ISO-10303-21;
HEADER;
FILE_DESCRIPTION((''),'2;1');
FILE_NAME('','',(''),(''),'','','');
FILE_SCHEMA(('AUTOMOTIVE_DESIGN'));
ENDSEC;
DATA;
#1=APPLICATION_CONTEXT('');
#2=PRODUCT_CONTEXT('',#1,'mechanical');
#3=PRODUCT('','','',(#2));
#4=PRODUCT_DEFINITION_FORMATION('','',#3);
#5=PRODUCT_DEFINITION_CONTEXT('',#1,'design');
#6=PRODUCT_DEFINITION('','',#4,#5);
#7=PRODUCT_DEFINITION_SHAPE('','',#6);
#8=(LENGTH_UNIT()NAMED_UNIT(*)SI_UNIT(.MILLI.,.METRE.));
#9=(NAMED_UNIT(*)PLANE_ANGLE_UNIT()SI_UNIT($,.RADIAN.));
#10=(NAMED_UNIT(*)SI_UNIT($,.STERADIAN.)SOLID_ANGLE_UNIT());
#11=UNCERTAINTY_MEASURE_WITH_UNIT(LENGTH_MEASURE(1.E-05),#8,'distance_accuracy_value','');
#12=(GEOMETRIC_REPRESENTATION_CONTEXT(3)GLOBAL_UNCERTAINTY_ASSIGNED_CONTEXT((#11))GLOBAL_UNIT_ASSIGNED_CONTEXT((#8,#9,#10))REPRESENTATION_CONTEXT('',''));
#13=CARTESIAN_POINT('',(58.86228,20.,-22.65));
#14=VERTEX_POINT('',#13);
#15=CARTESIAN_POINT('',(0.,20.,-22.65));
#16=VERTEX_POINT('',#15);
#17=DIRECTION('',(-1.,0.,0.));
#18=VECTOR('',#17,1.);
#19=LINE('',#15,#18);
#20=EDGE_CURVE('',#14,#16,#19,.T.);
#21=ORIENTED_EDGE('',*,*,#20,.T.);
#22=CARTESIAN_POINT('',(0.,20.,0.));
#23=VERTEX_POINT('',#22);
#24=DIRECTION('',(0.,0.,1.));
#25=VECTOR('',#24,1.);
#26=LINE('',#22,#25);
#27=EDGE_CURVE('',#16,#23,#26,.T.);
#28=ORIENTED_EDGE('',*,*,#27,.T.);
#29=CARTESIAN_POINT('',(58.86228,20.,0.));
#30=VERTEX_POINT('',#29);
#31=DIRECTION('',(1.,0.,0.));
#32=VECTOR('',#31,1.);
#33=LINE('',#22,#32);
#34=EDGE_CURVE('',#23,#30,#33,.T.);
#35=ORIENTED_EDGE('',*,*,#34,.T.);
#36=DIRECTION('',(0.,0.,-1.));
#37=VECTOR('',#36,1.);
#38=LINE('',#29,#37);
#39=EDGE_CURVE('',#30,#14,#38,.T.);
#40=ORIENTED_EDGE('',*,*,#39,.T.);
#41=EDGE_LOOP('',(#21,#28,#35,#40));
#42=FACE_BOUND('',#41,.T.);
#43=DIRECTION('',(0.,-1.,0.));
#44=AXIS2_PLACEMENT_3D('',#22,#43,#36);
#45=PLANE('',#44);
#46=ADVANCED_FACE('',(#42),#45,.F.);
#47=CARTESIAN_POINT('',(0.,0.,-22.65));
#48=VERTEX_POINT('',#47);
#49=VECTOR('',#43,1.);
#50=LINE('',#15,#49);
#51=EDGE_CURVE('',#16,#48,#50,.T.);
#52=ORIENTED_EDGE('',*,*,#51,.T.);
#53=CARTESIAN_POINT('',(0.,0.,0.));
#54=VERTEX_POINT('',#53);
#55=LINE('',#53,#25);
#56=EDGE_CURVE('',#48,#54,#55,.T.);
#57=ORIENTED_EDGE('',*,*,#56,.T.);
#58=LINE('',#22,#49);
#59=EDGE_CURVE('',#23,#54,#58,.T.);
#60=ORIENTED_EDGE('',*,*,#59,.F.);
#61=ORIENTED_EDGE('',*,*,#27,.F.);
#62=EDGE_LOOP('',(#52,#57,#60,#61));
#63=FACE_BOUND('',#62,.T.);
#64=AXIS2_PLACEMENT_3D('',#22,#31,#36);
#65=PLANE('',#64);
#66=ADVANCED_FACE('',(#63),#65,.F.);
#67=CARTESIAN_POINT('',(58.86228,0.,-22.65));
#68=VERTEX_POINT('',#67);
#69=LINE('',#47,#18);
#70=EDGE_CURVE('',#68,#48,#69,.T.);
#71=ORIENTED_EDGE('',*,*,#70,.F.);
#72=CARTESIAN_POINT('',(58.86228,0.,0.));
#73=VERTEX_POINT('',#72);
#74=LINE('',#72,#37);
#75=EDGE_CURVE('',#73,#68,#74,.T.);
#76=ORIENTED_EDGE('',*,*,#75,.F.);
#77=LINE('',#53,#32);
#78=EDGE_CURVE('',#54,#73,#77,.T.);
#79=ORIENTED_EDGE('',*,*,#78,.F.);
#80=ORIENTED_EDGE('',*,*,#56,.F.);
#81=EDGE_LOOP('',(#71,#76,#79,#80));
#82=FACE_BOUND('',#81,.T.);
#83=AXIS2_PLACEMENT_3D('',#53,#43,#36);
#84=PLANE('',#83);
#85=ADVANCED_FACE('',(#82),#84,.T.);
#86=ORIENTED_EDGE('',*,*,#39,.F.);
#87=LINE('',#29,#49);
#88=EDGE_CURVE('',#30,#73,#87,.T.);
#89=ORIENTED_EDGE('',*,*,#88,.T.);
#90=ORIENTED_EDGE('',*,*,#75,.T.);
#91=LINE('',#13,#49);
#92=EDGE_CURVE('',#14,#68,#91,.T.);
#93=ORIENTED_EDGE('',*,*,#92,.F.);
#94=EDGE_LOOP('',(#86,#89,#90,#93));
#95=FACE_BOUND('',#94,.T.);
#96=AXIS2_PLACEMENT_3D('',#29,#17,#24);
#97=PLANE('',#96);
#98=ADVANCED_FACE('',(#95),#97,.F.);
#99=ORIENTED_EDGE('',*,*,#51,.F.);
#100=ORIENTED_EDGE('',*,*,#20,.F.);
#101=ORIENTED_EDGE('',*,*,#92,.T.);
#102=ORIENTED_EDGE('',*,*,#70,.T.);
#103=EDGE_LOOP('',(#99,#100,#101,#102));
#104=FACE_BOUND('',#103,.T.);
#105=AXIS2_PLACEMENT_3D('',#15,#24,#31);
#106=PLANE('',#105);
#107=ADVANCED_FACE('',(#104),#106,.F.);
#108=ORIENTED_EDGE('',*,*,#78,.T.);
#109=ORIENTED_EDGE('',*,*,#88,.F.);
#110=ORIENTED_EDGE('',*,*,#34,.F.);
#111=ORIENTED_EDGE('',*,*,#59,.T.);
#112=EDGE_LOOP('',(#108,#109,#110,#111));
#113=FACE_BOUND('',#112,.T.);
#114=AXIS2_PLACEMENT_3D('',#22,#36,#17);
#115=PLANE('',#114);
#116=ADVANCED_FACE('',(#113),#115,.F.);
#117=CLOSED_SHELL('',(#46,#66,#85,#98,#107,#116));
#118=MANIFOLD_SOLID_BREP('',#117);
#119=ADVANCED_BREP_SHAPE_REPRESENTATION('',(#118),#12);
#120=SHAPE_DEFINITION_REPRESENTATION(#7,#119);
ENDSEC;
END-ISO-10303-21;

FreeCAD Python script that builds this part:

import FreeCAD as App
import Part
import Sketcher

V = App.Vector
Q = App.Units.Quantity


def add_polygon(sketch, points):
    """Adds a closed chain of lines whose ends are joined by coincident constraints."""
    first, n = sketch.GeometryCount, len(points)
    for a, b in zip(points, points[1:] + points[:1]):
        sketch.addGeometry(Part.LineSegment(App.Vector(*a, 0), App.Vector(*b, 0)), False)
    for i in range(n):
        sketch.addConstraint(Sketcher.Constraint("Coincident", first + i, 2, first + (i + 1) % n, 1))

doc = App.newDocument("Part")
body = doc.addObject("PartDesign::Body", "Body")

# Sketch on XZ plane
sketch1 = body.newObject("Sketcher::SketchObject", "Sketch")
sketch1.AttachmentSupport = (doc.getObject("XZ_Plane"), [""])
sketch1.MapMode = "FlatFace"
add_polygon(sketch1, [(0, -23), (0, 0), (59, 0), (59, -23)])  # lines 0-3
sketch1.addConstraint(Sketcher.Constraint("Vertical", 0))
sketch1.addConstraint(Sketcher.Constraint("Horizontal", 1))
sketch1.addConstraint(Sketcher.Constraint("Vertical", 2))
sketch1.addConstraint(Sketcher.Constraint("Horizontal", 3))
sketch1.addConstraint(Sketcher.Constraint("Coincident", 0, 2, -1, 1))
sketch1.addConstraint(Sketcher.Constraint("DistanceY", 0, 1, 0, 2, Q("22.65 mm")))
sketch1.addConstraint(Sketcher.Constraint("DistanceX", 1, 1, 1, 2, Q("58.86228 mm")))
pad1 = body.newObject("PartDesign::Pad", "Pad")
pad1.Profile = sketch1
pad1.Length = 20
pad1.Reversed = True

doc.recompute()
